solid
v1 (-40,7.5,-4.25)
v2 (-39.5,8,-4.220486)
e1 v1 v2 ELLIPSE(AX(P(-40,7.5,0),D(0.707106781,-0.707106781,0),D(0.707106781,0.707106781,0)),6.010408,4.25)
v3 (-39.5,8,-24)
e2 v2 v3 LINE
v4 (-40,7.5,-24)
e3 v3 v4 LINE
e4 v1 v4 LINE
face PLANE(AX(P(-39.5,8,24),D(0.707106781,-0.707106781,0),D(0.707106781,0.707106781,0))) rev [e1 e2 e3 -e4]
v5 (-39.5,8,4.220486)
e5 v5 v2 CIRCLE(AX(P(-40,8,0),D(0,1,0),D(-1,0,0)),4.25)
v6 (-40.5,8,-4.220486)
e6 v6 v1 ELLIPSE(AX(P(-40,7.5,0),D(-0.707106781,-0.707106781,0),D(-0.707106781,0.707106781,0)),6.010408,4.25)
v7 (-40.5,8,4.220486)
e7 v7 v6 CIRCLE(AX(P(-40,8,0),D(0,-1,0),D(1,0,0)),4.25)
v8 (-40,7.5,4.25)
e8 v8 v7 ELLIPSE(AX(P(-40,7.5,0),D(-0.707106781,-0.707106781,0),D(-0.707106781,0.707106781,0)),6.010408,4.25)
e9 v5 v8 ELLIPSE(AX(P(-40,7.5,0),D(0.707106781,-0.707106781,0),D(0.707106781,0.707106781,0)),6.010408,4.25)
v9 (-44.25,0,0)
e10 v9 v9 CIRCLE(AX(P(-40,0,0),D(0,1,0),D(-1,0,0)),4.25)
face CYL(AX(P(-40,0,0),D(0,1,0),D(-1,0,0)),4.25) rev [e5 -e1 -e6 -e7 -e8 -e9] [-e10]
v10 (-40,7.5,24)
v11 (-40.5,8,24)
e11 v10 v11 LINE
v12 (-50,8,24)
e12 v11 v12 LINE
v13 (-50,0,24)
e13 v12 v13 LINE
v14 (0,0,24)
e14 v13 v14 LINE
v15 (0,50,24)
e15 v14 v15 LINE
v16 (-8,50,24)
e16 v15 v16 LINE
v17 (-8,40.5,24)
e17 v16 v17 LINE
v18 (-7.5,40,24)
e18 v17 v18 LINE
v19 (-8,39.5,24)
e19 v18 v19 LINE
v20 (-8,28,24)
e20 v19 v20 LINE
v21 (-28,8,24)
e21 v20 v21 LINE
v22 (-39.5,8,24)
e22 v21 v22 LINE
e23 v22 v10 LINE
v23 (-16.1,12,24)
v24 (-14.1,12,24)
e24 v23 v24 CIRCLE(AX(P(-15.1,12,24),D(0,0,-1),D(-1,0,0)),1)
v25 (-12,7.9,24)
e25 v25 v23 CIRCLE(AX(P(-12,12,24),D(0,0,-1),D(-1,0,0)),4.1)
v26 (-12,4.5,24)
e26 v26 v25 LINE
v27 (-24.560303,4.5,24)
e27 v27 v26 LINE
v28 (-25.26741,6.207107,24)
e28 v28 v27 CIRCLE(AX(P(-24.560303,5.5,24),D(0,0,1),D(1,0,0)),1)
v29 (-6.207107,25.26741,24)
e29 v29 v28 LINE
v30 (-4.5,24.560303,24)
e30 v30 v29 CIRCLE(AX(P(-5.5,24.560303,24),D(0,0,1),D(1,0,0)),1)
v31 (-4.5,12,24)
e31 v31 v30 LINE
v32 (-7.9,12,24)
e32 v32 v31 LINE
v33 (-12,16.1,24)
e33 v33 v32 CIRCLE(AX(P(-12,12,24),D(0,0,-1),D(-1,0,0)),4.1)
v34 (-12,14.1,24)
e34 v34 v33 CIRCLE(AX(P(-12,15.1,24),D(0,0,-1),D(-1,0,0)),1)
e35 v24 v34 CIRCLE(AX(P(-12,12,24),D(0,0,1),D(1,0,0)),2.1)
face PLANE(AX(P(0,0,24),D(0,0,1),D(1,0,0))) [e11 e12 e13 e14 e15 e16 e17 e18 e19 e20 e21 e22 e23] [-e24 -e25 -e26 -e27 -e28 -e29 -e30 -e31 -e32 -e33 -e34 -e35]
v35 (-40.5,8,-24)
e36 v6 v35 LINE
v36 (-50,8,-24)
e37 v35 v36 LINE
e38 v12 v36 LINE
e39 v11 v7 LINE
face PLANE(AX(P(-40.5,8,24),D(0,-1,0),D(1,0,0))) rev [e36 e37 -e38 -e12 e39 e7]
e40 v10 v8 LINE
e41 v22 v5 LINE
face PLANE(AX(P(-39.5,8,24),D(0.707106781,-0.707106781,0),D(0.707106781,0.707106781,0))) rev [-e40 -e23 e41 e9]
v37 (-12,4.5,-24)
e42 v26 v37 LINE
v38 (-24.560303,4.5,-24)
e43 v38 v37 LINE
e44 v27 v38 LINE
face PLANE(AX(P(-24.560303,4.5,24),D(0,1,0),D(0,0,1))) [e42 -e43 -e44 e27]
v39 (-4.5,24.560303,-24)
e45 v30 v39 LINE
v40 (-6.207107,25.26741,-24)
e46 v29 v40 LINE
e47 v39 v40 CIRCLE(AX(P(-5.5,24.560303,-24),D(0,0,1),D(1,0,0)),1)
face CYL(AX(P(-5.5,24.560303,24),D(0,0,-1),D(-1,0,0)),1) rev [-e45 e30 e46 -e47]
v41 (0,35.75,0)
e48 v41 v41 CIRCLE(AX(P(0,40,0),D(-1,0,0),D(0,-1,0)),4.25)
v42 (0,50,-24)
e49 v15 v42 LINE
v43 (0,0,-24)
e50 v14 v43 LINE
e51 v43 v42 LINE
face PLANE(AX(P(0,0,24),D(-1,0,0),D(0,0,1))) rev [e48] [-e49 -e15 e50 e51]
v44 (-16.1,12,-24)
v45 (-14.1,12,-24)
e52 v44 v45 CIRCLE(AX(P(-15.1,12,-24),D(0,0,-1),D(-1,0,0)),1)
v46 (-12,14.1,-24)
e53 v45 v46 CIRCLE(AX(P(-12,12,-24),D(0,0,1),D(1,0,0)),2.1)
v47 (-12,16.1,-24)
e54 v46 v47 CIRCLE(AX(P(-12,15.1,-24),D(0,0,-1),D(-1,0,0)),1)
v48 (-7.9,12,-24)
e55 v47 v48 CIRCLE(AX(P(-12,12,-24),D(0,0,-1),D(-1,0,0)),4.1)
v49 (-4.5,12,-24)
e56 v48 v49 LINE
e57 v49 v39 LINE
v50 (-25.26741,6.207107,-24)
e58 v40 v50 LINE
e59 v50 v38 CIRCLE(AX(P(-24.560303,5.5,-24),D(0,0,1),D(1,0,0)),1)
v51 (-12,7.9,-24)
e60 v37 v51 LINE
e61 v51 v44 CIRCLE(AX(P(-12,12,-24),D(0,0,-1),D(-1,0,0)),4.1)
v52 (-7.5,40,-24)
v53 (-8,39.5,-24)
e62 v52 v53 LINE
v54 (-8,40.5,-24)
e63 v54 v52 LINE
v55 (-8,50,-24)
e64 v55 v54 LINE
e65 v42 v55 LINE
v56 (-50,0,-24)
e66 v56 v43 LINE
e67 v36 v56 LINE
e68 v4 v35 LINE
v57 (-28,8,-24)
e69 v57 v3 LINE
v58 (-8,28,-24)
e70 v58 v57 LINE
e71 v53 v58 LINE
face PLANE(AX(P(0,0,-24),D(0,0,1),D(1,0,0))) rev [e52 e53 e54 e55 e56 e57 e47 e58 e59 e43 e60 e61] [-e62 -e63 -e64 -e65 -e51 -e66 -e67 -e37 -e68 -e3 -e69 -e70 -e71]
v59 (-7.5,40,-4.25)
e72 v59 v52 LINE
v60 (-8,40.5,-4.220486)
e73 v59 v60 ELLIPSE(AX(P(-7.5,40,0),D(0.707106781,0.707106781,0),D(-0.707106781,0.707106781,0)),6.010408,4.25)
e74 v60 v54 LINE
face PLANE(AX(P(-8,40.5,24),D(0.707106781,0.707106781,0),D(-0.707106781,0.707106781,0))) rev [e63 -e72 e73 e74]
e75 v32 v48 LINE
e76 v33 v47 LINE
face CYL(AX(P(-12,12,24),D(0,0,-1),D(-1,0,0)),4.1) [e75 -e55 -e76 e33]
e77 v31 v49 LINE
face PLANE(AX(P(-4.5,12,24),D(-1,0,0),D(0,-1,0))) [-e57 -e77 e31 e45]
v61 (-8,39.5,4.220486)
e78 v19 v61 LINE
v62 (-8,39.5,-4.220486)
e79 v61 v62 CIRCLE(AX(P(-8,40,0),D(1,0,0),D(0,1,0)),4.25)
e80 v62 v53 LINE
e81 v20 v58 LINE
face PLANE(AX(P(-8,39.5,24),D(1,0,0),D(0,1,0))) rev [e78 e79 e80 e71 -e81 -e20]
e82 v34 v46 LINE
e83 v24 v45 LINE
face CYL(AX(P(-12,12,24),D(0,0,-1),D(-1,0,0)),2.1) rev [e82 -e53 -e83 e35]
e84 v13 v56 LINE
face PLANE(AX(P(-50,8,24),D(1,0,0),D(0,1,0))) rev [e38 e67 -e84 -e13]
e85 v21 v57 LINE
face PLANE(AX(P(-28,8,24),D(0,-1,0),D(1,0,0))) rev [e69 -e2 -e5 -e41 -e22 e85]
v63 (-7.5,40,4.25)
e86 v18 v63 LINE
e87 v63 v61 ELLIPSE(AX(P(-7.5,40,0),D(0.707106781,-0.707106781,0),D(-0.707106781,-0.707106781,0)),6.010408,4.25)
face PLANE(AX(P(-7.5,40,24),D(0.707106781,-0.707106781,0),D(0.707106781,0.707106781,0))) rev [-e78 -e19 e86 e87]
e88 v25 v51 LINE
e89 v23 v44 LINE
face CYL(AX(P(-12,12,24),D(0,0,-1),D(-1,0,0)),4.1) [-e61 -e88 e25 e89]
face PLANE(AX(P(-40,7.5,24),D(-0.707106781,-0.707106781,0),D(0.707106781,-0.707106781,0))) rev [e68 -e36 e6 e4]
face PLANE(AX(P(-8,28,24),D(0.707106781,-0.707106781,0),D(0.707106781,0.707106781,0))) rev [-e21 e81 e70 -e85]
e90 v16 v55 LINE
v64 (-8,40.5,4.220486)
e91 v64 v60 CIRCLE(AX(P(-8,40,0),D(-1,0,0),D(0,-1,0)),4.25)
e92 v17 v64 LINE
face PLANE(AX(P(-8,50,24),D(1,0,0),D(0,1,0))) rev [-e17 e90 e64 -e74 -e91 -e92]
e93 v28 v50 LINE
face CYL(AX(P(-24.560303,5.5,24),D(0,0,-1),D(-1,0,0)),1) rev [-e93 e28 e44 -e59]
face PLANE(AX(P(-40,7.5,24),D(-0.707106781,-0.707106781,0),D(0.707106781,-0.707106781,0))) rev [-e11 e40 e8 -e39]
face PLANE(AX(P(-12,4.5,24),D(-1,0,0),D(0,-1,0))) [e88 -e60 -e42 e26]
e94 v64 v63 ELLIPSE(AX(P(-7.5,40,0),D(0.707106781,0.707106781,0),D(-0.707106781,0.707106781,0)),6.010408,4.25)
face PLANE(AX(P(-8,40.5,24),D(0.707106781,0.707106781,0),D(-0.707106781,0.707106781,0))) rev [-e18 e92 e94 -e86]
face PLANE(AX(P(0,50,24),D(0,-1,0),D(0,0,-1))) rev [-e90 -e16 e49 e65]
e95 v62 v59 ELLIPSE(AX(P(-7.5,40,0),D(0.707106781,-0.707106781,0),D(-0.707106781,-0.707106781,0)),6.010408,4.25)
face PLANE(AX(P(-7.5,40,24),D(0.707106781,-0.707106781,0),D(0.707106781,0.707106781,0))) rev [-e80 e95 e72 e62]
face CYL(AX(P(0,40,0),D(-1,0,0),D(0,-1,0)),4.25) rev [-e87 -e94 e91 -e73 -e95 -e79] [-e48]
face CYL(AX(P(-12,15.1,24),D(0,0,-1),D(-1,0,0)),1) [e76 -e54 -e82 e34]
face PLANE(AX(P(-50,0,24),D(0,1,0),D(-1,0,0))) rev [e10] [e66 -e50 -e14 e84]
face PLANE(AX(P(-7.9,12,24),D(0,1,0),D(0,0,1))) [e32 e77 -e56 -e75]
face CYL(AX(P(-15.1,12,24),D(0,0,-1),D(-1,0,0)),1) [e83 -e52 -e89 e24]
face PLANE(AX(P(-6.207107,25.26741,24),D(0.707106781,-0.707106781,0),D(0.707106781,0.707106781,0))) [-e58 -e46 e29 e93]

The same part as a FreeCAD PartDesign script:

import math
import FreeCAD as App
import Part
import Sketcher

doc = App.newDocument("Part")
body = doc.addObject("PartDesign::Body", "Body")

sketch1 = body.newObject("Sketcher::SketchObject", "Sketch")
sketch1.AttachmentSupport = (doc.getObject("XY_Plane"), [""])
sketch1.MapMode = "FlatFace"
sketch1.addGeometry(Part.LineSegment(App.Vector(-50, 0, 0), App.Vector(0, 0, 0)), False)
sketch1.addGeometry(Part.LineSegment(App.Vector(0, 0, 0), App.Vector(0, 50, 0)), False)
sketch1.addGeometry(Part.LineSegment(App.Vector(0, 50, 0), App.Vector(-8, 50, 0)), False)
sketch1.addGeometry(Part.LineSegment(App.Vector(-8, 50, 0), App.Vector(-8, 40.5, 0)), False)
sketch1.addGeometry(Part.LineSegment(App.Vector(-8, 40.5, 0), App.Vector(-7.5, 40, 0)), False)
sketch1.addGeometry(Part.LineSegment(App.Vector(-7.5, 40, 0), App.Vector(-8, 39.5, 0)), False)
sketch1.addGeometry(Part.LineSegment(App.Vector(-8, 39.5, 0), App.Vector(-8, 28, 0)), False)
sketch1.addGeometry(Part.LineSegment(App.Vector(-8, 28, 0), App.Vector(-28, 8, 0)), False)
sketch1.addGeometry(Part.LineSegment(App.Vector(-28, 8, 0), App.Vector(-39.5, 8, 0)), False)
sketch1.addGeometry(Part.LineSegment(App.Vector(-39.5, 8, 0), App.Vector(-40, 7.5, 0)), False)
sketch1.addGeometry(Part.LineSegment(App.Vector(-40, 7.5, 0), App.Vector(-40.5, 8, 0)), False)
sketch1.addGeometry(Part.LineSegment(App.Vector(-40.5, 8, 0), App.Vector(-50, 8, 0)), False)
sketch1.addGeometry(Part.LineSegment(App.Vector(-50, 8, 0), App.Vector(-50, 0, 0)), False)
sketch1.addGeometry(Part.LineSegment(App.Vector(-4.5, 24.560303, 0), App.Vector(-4.5, 12, 0)), False)
sketch1.addGeometry(Part.LineSegment(App.Vector(-4.5, 12, 0), App.Vector(-7.9, 12, 0)), False)
sketch1.addGeometry(Part.ArcOfCircle(Part.Circle(App.Vector(-12, 12, 0), App.Vector(0, 0, 1), 4.1), math.radians(0), math.radians(90)), False)
sketch1.addGeometry(Part.ArcOfCircle(Part.Circle(App.Vector(-12, 15.1, 0), App.Vector(0, 0, 1), 1), math.radians(90), math.radians(270)), False)
sketch1.addGeometry(Part.ArcOfCircle(Part.Circle(App.Vector(-12, 12, 0), App.Vector(0, 0, 1), 2.1), math.radians(180), math.radians(450)), False)
sketch1.addGeometry(Part.ArcOfCircle(Part.Circle(App.Vector(-15.1, 12, 0), App.Vector(0, 0, 1), 1), math.radians(0), math.radians(180)), False)
sketch1.addGeometry(Part.ArcOfCircle(Part.Circle(App.Vector(-12, 12, 0), App.Vector(0, 0, 1), 4.1), math.radians(180), math.radians(270)), False)
sketch1.addGeometry(Part.LineSegment(App.Vector(-12, 7.9, 0), App.Vector(-12, 4.5, 0)), False)
sketch1.addGeometry(Part.LineSegment(App.Vector(-12, 4.5, 0), App.Vector(-24.560303, 4.5, 0)), False)
sketch1.addGeometry(Part.ArcOfCircle(Part.Circle(App.Vector(-24.560303, 5.5, 0), App.Vector(0, 0, 1), 1), math.radians(135), math.radians(270)), False)
sketch1.addGeometry(Part.LineSegment(App.Vector(-25.26741, 6.207107, 0), App.Vector(-6.207107, 25.26741, 0)), False)
sketch1.addGeometry(Part.ArcOfCircle(Part.Circle(App.Vector(-5.5, 24.560303, 0), App.Vector(0, 0, 1), 1), math.radians(0), math.radians(135)), False)
sketch1.addConstraint(Sketcher.Constraint("Coincident", 0, 2, 1, 1))
sketch1.addConstraint(Sketcher.Constraint("Coincident", 1, 2, 2, 1))
sketch1.addConstraint(Sketcher.Constraint("Coincident", 2, 2, 3, 1))
sketch1.addConstraint(Sketcher.Constraint("Coincident", 3, 2, 4, 1))
sketch1.addConstraint(Sketcher.Constraint("Coincident", 4, 2, 5, 1))
sketch1.addConstraint(Sketcher.Constraint("Coincident", 5, 2, 6, 1))
sketch1.addConstraint(Sketcher.Constraint("Coincident", 6, 2, 7, 1))
sketch1.addConstraint(Sketcher.Constraint("Coincident", 7, 2, 8, 1))
sketch1.addConstraint(Sketcher.Constraint("Coincident", 8, 2, 9, 1))
sketch1.addConstraint(Sketcher.Constraint("Coincident", 9, 2, 10, 1))
sketch1.addConstraint(Sketcher.Constraint("Coincident", 10, 2, 11, 1))
sketch1.addConstraint(Sketcher.Constraint("Coincident", 11, 2, 12, 1))
sketch1.addConstraint(Sketcher.Constraint("Coincident", 12, 2, 0, 1))
sketch1.addConstraint(Sketcher.Constraint("Coincident", 13, 2, 14, 1))
sketch1.addConstraint(Sketcher.Constraint("Coincident", 14, 2, 15, 1))
sketch1.addConstraint(Sketcher.Constraint("Tangent", 15, 2, 16, 1))
sketch1.addConstraint(Sketcher.Constraint("Tangent", 16, 2, 17, 2))
sketch1.addConstraint(Sketcher.Constraint("Tangent", 17, 1, 18, 1))
sketch1.addConstraint(Sketcher.Constraint("Tangent", 18, 2, 19, 1))
sketch1.addConstraint(Sketcher.Constraint("Coincident", 19, 2, 20, 1))
sketch1.addConstraint(Sketcher.Constraint("Coincident", 20, 2, 21, 1))
sketch1.addConstraint(Sketcher.Constraint("Tangent", 21, 2, 22, 2))
sketch1.addConstraint(Sketcher.Constraint("Tangent", 22, 1, 23, 1))
sketch1.addConstraint(Sketcher.Constraint("Tangent", 23, 2, 24, 2))
sketch1.addConstraint(Sketcher.Constraint("Tangent", 24, 1, 13, 1))
sketch1.addConstraint(Sketcher.Constraint("Horizontal", 0))
sketch1.addConstraint(Sketcher.Constraint("Vertical", 1))
sketch1.addConstraint(Sketcher.Constraint("Horizontal", 2))
sketch1.addConstraint(Sketcher.Constraint("Vertical", 3))
sketch1.addConstraint(Sketcher.Constraint("Vertical", 6))
sketch1.addConstraint(Sketcher.Constraint("Horizontal", 8))
sketch1.addConstraint(Sketcher.Constraint("Horizontal", 11))
sketch1.addConstraint(Sketcher.Constraint("Vertical", 12))
sketch1.addConstraint(Sketcher.Constraint("Vertical", 13))
sketch1.addConstraint(Sketcher.Constraint("Horizontal", 14))
sketch1.addConstraint(Sketcher.Constraint("Vertical", 20))
sketch1.addConstraint(Sketcher.Constraint("Horizontal", 21))
sketch1.addConstraint(Sketcher.Constraint("Coincident", 0, 2, -1, 1))
sketch1.addConstraint(Sketcher.Constraint("Coincident", 17, 3, 15, 3))
sketch1.addConstraint(Sketcher.Constraint("Coincident", 19, 3, 15, 3))
sketch1.addConstraint(Sketcher.Constraint("Equal", 16, 18))
sketch1.addConstraint(Sketcher.Constraint("Equal", 18, 22))
sketch1.addConstraint(Sketcher.Constraint("Equal", 22, 24))
sketch1.addConstraint(Sketcher.Constraint("Perpendicular", 4, 5))
sketch1.addConstraint(Sketcher.Constraint("Parallel", 5, 7))
sketch1.addConstraint(Sketcher.Constraint("Parallel", 7, 9))
sketch1.addConstraint(Sketcher.Constraint("Perpendicular", 9, 10))
sketch1.addConstraint(Sketcher.Constraint("Perpendicular", 10, 23))
sketch1.addConstraint(Sketcher.Constraint("Horizontal", 17, 3, 18, 3))
sketch1.addConstraint(Sketcher.Constraint("Horizontal", 8, 2, 10, 2))
sketch1.addConstraint(Sketcher.Constraint("Horizontal", 19, 3, 13, 2))
sketch1.addConstraint(Sketcher.Constraint("Vertical", 15, 3, 16, 3))
sketch1.addConstraint(Sketcher.Constraint("Vertical", 3, 2, 5, 2))
sketch1.addConstraint(Sketcher.Constraint("Vertical", 16, 2, 19, 2))
sketch1.addConstraint(Sketcher.Constraint("Equal", 0, 1))
sketch1.addConstraint(Sketcher.Constraint("Equal", 11, 3))
sketch1.addConstraint(Sketcher.Constraint("Equal", 8, 6))
sketch1.addConstraint(Sketcher.Constraint("Equal", 2, 12))
sketch1.addConstraint(Sketcher.Constraint("Equal", 21, 13))
sketch1.addConstraint(Sketcher.Constraint("Equal", 14, 20))
sketch1.addConstraint(Sketcher.Constraint("Radius", 16, 1.0))
sketch1.addConstraint(Sketcher.Constraint("Radius", 15, 4.1))
sketch1.addConstraint(Sketcher.Constraint("DistanceX", 0, 1, 0, 2, 50.0))
sketch1.addConstraint(Sketcher.Constraint("DistanceX", 2, 2, 2, 1, 8.0))
sketch1.addConstraint(Sketcher.Constraint("DistanceX", 8, 2, 8, 1, 11.5))
sketch1.addConstraint(Sketcher.Constraint("DistanceX", 11, 2, 11, 1, 9.5))
sketch1.addConstraint(Sketcher.Constraint("DistanceX", 14, 2, 14, 1, 3.4))
sketch1.addConstraint(Sketcher.Constraint("DistanceX", 15, 3, -1, 1, 12.0))
sketch1.addConstraint(Sketcher.Constraint("DistanceY", -1, 1, 15, 3, 12.0))
sketch1.addConstraint(Sketcher.Constraint("DistanceY", -1, 1, 4, 2, 40.0))
sketch1.addConstraint(Sketcher.Constraint("Distance", 23, 26.955339))
pad1 = body.newObject("PartDesign::Pad", "Pad")
pad1.Profile = sketch1
pad1.Length = 48
pad1.Midplane = True

sketch2 = body.newObject("Sketcher::SketchObject", "Sketch001")
sketch2.AttachmentSupport = (doc.getObject("YZ_Plane"), [""])
sketch2.MapMode = "FlatFace"
sketch2.AttachmentOffset = App.Placement(App.Vector(0, 0, -8), App.Rotation())
sketch2.addGeometry(Part.Circle(App.Vector(40, 0, 0), App.Vector(0, 0, 1), 4.25), False)
sketch2.addConstraint(Sketcher.Constraint("PointOnObject", 0, 3, -1))
sketch2.addConstraint(Sketcher.Constraint("Diameter", 0, 8.5))
sketch2.addConstraint(Sketcher.Constraint("DistanceX", -1, 1, 0, 3, 40.0))
pocket1 = body.newObject("PartDesign::Pocket", "Pocket")
pocket1.Profile = sketch2
pocket1.Type = "ThroughAll"
pocket1.Reversed = True

sketch3 = body.newObject("Sketcher::SketchObject", "Sketch002")
sketch3.AttachmentSupport = (doc.getObject("XZ_Plane"), [""])
sketch3.MapMode = "FlatFace"
sketch3.AttachmentOffset = App.Placement(App.Vector(0, 0, -8), App.Rotation())
sketch3.addGeometry(Part.Circle(App.Vector(-40, 0, 0), App.Vector(0, 0, 1), 4.25), False)
sketch3.addConstraint(Sketcher.Constraint("PointOnObject", 0, 3, -1))
sketch3.addConstraint(Sketcher.Constraint("Diameter", 0, 8.5))
sketch3.addConstraint(Sketcher.Constraint("DistanceX", 0, 3, -1, 1, 40.0))
pocket2 = body.newObject("PartDesign::Pocket", "Pocket001")
pocket2.Profile = sketch3
pocket2.Type = "ThroughAll"
pocket2.Reversed = True

doc.recompute()
